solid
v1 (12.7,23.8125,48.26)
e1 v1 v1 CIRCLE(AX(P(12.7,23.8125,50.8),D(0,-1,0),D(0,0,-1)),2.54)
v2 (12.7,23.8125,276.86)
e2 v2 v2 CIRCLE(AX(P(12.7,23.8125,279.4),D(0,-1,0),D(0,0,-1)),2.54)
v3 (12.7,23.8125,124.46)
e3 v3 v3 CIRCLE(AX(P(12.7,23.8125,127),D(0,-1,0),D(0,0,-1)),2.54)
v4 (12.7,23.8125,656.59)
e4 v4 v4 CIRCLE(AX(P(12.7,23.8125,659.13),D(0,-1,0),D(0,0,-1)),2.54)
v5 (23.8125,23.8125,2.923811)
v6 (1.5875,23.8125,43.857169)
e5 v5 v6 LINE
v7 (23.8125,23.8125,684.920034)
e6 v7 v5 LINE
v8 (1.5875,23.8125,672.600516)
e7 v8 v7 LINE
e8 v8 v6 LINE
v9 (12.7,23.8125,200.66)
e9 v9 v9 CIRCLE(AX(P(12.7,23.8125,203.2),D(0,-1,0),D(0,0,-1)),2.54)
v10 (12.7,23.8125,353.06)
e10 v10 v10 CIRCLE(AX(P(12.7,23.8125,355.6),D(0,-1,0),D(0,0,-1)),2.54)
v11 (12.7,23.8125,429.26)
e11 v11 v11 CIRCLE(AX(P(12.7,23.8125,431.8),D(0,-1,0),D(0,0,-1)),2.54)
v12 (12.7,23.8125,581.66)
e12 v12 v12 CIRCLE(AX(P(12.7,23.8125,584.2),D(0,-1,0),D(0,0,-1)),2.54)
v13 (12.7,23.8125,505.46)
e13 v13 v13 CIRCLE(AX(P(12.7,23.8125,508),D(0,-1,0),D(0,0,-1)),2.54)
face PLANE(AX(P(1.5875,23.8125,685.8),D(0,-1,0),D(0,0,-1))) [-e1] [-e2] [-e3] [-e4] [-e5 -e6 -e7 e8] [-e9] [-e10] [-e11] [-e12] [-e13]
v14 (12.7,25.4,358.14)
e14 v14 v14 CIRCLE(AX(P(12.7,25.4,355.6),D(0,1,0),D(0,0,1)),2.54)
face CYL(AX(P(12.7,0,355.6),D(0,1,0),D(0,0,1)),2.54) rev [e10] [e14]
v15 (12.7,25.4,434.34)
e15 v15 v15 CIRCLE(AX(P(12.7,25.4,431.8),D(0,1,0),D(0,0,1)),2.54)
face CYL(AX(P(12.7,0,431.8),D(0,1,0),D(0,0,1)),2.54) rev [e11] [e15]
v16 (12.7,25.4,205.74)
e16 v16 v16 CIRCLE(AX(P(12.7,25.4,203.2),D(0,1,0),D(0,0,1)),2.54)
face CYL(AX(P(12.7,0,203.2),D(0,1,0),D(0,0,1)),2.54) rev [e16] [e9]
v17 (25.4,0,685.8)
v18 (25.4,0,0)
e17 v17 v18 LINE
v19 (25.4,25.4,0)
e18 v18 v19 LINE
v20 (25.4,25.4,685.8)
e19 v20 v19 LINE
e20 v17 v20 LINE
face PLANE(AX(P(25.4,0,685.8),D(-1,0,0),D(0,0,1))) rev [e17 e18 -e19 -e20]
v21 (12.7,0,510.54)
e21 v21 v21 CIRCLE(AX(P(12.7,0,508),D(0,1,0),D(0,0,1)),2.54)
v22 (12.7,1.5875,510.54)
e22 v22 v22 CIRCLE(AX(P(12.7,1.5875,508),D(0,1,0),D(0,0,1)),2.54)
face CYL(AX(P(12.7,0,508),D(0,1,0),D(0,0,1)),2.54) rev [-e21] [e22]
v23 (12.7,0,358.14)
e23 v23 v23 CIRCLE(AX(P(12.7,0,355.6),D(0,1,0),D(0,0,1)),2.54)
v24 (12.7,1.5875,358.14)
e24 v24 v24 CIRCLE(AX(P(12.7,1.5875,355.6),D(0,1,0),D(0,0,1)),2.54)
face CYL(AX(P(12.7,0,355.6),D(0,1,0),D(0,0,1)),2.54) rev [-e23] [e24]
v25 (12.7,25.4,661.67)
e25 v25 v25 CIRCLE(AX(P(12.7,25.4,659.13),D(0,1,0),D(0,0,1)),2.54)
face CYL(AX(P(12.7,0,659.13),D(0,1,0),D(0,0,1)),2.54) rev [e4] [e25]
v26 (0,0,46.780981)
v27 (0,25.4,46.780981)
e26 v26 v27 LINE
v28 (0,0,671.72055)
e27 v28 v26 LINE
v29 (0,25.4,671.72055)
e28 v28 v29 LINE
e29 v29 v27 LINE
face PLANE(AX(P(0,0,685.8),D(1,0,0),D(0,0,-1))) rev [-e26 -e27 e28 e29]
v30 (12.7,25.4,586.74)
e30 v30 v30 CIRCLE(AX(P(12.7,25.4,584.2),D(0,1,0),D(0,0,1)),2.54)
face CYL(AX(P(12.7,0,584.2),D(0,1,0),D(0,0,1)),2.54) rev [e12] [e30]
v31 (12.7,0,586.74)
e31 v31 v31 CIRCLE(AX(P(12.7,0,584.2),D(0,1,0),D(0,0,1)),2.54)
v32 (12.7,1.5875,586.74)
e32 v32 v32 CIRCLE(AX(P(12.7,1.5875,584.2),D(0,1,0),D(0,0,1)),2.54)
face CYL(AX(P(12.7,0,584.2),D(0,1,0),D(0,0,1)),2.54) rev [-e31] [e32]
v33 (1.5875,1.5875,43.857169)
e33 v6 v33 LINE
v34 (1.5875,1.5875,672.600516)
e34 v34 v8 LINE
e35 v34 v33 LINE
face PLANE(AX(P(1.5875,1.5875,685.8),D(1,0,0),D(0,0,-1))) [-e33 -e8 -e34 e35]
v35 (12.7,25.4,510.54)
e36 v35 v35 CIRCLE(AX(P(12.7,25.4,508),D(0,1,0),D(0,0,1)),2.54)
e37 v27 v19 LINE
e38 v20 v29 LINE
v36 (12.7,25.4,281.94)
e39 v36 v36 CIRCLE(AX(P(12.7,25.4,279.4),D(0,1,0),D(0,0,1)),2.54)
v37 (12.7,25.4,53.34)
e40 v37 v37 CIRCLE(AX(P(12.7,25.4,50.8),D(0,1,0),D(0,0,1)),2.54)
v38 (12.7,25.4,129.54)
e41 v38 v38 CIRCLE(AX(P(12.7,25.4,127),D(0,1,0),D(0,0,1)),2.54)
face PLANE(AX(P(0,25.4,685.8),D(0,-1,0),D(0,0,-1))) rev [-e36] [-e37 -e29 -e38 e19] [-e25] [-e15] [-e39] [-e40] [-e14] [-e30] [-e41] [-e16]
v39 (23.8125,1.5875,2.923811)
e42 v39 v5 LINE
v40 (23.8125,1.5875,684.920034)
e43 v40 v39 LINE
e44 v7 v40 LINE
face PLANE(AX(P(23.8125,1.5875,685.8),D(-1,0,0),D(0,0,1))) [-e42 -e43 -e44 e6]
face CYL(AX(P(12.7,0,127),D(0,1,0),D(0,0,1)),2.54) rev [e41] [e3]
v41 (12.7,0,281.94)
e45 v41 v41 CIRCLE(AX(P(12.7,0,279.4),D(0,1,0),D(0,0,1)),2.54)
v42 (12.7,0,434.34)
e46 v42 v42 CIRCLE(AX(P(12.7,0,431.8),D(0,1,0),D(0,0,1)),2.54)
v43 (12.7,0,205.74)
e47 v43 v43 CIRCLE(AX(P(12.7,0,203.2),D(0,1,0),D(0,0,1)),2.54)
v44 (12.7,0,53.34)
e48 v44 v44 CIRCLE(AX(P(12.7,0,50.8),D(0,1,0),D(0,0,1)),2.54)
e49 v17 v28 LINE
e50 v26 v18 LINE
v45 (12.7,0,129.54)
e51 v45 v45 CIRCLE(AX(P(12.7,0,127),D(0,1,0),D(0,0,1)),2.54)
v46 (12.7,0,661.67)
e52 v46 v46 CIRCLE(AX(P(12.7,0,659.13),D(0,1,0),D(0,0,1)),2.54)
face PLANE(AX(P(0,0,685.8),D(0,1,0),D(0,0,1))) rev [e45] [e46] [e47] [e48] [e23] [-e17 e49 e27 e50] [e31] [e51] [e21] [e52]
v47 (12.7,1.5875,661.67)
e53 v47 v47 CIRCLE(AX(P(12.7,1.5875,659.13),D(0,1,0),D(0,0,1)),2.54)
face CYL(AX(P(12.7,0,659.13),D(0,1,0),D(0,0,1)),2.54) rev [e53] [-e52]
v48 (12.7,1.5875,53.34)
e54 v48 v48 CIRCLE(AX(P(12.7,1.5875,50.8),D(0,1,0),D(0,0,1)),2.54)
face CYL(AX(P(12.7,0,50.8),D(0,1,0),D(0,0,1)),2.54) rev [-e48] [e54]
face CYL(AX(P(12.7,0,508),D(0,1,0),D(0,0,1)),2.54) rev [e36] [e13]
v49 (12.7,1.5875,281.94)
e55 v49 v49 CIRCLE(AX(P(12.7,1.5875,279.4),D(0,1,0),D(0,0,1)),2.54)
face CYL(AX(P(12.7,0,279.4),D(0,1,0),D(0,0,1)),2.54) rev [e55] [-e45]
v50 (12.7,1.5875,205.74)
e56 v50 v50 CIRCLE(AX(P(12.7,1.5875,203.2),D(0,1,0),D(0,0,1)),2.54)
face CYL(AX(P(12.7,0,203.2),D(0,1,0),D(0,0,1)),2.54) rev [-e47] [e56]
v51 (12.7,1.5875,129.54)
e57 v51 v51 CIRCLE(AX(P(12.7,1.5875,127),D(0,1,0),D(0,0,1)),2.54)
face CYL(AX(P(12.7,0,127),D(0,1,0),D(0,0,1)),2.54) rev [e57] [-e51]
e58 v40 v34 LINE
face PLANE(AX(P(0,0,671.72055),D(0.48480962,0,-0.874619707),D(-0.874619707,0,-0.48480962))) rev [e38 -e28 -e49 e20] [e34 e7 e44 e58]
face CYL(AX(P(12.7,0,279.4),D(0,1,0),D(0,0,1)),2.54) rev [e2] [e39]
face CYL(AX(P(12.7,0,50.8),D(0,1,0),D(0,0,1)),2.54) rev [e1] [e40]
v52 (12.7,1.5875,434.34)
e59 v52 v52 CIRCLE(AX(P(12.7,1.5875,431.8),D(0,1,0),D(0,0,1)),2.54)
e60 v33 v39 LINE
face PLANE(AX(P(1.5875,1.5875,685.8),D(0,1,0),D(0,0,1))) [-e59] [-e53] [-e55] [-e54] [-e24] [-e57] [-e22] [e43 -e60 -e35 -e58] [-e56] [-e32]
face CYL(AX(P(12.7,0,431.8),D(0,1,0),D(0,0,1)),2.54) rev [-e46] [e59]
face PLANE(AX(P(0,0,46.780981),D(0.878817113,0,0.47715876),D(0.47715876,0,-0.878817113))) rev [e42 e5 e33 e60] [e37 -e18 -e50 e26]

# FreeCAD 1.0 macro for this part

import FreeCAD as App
import Part
import Sketcher
Q = App.Units.Quantity


def add_polygon(sketch, points):
    """Adds a closed chain of lines whose ends are joined by coincident constraints."""
    first, n = sketch.GeometryCount, len(points)
    for a, b in zip(points, points[1:] + points[:1]):
        sketch.addGeometry(Part.LineSegment(App.Vector(*a, 0), App.Vector(*b, 0)), False)
    for i in range(n):
        sketch.addConstraint(Sketcher.Constraint("Coincident", first + i, 2, first + (i + 1) % n, 1))

doc = App.newDocument("Part")
body = doc.addObject("PartDesign::Body", "Body")

sketch1 = body.newObject("Sketcher::SketchObject", "Sketch")
sketch1.AttachmentSupport = (doc.getObject("XY_Plane"), [""])
sketch1.MapMode = "FlatFace"
add_polygon(sketch1, [(0, 25), (0, 0), (25, 0), (25, 25)])
add_polygon(sketch1, [(24, 2), (2, 2), (2, 24), (24, 24)])
sketch1.addConstraint(Sketcher.Constraint("Vertical", 0))
sketch1.addConstraint(Sketcher.Constraint("Horizontal", 1))
sketch1.addConstraint(Sketcher.Constraint("Vertical", 2))
sketch1.addConstraint(Sketcher.Constraint("Horizontal", 3))
sketch1.addConstraint(Sketcher.Constraint("Horizontal", 4))
sketch1.addConstraint(Sketcher.Constraint("Vertical", 5))
sketch1.addConstraint(Sketcher.Constraint("Horizontal", 6))
sketch1.addConstraint(Sketcher.Constraint("Vertical", 7))
sketch1.addConstraint(Sketcher.Constraint("Coincident", 0, 2, -1, 1))
sketch1.addConstraint(Sketcher.Constraint("Equal", 3, 0))
sketch1.addConstraint(Sketcher.Constraint("Equal", 6, 5))
sketch1.addConstraint(Sketcher.Constraint("DistanceX", 1, 1, 1, 2, Q("1 in")))
sketch1.addConstraint(Sketcher.Constraint("DistanceX", 4, 2, 4, 1, Q("0.875 in")))
sketch1.addConstraint(Sketcher.Constraint("DistanceX", -1, 1, 4, 2, Q("0.0625 in")))
sketch1.addConstraint(Sketcher.Constraint("DistanceY", -1, 1, 4, 2, Q("0.0625 in")))
pad1 = body.newObject("PartDesign::Pad", "Pad")
pad1.Profile = sketch1
pad1.Length = Q("27 in")

sketch2 = body.newObject("Sketcher::SketchObject", "Sketch001")
sketch2.AttachmentSupport = (doc.getObject("XZ_Plane"), [""])
sketch2.MapMode = "FlatFace"
sketch2.AttachmentOffset = App.Placement(App.Vector(0, 0, -1 * 25.4), App.Rotation())
sketch2.addGeometry(Part.Circle(App.Vector(12.7, 50.8, 0), App.Vector(0, 0, 1), 2.5), False)
sketch2.addGeometry(Part.Circle(App.Vector(12.7, 127, 0), App.Vector(0, 0, 1), 2.5), False)
sketch2.addGeometry(Part.Circle(App.Vector(12.7, 203.2, 0), App.Vector(0, 0, 1), 2.5), False)
sketch2.addGeometry(Part.Circle(App.Vector(12.7, 279.4, 0), App.Vector(0, 0, 1), 2.5), False)
sketch2.addGeometry(Part.Circle(App.Vector(12.7, 355.6, 0), App.Vector(0, 0, 1), 2.5), False)
sketch2.addGeometry(Part.Circle(App.Vector(12.7, 431.8, 0), App.Vector(0, 0, 1), 2.5), False)
sketch2.addGeometry(Part.Circle(App.Vector(12.7, 508, 0), App.Vector(0, 0, 1), 2.5), False)
sketch2.addGeometry(Part.Circle(App.Vector(12.7, 584.2, 0), App.Vector(0, 0, 1), 2.5), False)
sketch2.addGeometry(Part.Circle(App.Vector(12.7, 659.1, 0), App.Vector(0, 0, 1), 2.5), False)
add_polygon(sketch2, [(0, 0), (0, 46.8), (25.4, 0)])
add_polygon(sketch2, [(0, 671.7), (0, 685.8), (25.4, 685.8)])
sketch2.addConstraint(Sketcher.Constraint("Vertical", 9))
sketch2.addConstraint(Sketcher.Constraint("Horizontal", 11))
sketch2.addConstraint(Sketcher.Constraint("Vertical", 12))
sketch2.addConstraint(Sketcher.Constraint("Horizontal", 13))
sketch2.addConstraint(Sketcher.Constraint("Coincident", 11, 2, -1, 1))
sketch2.addConstraint(Sketcher.Constraint("Equal", 0, 1))
sketch2.addConstraint(Sketcher.Constraint("Equal", 1, 2))
sketch2.addConstraint(Sketcher.Constraint("Equal", 2, 3))
sketch2.addConstraint(Sketcher.Constraint("Equal", 3, 4))
sketch2.addConstraint(Sketcher.Constraint("Equal", 4, 5))
sketch2.addConstraint(Sketcher.Constraint("Equal", 5, 6))
sketch2.addConstraint(Sketcher.Constraint("Equal", 6, 7))
sketch2.addConstraint(Sketcher.Constraint("Equal", 7, 8))
sketch2.addConstraint(Sketcher.Constraint("PointOnObject", 12, 2, -2))
sketch2.addConstraint(Sketcher.Constraint("Vertical", 0, 3, 1, 3))
sketch2.addConstraint(Sketcher.Constraint("Vertical", 1, 3, 2, 3))
sketch2.addConstraint(Sketcher.Constraint("Vertical", 2, 3, 3, 3))
sketch2.addConstraint(Sketcher.Constraint("Vertical", 3, 3, 4, 3))
sketch2.addConstraint(Sketcher.Constraint("Vertical", 4, 3, 5, 3))
sketch2.addConstraint(Sketcher.Constraint("Vertical", 5, 3, 6, 3))
sketch2.addConstraint(Sketcher.Constraint("Vertical", 6, 3, 7, 3))
sketch2.addConstraint(Sketcher.Constraint("Vertical", 7, 3, 8, 3))
sketch2.addConstraint(Sketcher.Constraint("Vertical", 10, 2, 13, 2))
sketch2.addConstraint(Sketcher.Constraint("Diameter", 0, Q("0.2 in")))
sketch2.addConstraint(Sketcher.Constraint("DistanceX", 11, 2, 11, 1, Q("1 in")))
sketch2.addConstraint(Sketcher.Constraint("DistanceY", -1, 1, 0, 3, Q("2 in")))
sketch2.addConstraint(Sketcher.Constraint("DistanceY", -1, 1, 1, 3, Q("5 in")))
sketch2.addConstraint(Sketcher.Constraint("DistanceY", -1, 1, 2, 3, Q("8 in")))
sketch2.addConstraint(Sketcher.Constraint("DistanceY", -1, 1, 3, 3, Q("11 in")))
sketch2.addConstraint(Sketcher.Constraint("DistanceY", -1, 1, 4, 3, Q("14 in")))
sketch2.addConstraint(Sketcher.Constraint("DistanceY", -1, 1, 5, 3, Q("17 in")))
sketch2.addConstraint(Sketcher.Constraint("DistanceY", -1, 1, 6, 3, Q("20 in")))
sketch2.addConstraint(Sketcher.Constraint("DistanceY", -1, 1, 7, 3, Q("23 in")))
sketch2.addConstraint(Sketcher.Constraint("DistanceY", -1, 1, 12, 2, Q("27 in")))
sketch2.addConstraint(Sketcher.Constraint("Angle", 14, Q("-151 deg")))
sketch2.addConstraint(Sketcher.Constraint("DistanceX", -1, 1, 0, 3, Q("0.5 in")))
sketch2.addConstraint(Sketcher.Constraint("Angle", 10, Q("-61.5 deg")))
sketch2.addConstraint(Sketcher.Constraint("DistanceY", -1, 1, 8, 3, Q("25.95 in")))
pocket1 = body.newObject("PartDesign::Pocket", "Pocket")
pocket1.Profile = sketch2
pocket1.Type = "ThroughAll"
pocket1.Reversed = True

doc.recompute()
